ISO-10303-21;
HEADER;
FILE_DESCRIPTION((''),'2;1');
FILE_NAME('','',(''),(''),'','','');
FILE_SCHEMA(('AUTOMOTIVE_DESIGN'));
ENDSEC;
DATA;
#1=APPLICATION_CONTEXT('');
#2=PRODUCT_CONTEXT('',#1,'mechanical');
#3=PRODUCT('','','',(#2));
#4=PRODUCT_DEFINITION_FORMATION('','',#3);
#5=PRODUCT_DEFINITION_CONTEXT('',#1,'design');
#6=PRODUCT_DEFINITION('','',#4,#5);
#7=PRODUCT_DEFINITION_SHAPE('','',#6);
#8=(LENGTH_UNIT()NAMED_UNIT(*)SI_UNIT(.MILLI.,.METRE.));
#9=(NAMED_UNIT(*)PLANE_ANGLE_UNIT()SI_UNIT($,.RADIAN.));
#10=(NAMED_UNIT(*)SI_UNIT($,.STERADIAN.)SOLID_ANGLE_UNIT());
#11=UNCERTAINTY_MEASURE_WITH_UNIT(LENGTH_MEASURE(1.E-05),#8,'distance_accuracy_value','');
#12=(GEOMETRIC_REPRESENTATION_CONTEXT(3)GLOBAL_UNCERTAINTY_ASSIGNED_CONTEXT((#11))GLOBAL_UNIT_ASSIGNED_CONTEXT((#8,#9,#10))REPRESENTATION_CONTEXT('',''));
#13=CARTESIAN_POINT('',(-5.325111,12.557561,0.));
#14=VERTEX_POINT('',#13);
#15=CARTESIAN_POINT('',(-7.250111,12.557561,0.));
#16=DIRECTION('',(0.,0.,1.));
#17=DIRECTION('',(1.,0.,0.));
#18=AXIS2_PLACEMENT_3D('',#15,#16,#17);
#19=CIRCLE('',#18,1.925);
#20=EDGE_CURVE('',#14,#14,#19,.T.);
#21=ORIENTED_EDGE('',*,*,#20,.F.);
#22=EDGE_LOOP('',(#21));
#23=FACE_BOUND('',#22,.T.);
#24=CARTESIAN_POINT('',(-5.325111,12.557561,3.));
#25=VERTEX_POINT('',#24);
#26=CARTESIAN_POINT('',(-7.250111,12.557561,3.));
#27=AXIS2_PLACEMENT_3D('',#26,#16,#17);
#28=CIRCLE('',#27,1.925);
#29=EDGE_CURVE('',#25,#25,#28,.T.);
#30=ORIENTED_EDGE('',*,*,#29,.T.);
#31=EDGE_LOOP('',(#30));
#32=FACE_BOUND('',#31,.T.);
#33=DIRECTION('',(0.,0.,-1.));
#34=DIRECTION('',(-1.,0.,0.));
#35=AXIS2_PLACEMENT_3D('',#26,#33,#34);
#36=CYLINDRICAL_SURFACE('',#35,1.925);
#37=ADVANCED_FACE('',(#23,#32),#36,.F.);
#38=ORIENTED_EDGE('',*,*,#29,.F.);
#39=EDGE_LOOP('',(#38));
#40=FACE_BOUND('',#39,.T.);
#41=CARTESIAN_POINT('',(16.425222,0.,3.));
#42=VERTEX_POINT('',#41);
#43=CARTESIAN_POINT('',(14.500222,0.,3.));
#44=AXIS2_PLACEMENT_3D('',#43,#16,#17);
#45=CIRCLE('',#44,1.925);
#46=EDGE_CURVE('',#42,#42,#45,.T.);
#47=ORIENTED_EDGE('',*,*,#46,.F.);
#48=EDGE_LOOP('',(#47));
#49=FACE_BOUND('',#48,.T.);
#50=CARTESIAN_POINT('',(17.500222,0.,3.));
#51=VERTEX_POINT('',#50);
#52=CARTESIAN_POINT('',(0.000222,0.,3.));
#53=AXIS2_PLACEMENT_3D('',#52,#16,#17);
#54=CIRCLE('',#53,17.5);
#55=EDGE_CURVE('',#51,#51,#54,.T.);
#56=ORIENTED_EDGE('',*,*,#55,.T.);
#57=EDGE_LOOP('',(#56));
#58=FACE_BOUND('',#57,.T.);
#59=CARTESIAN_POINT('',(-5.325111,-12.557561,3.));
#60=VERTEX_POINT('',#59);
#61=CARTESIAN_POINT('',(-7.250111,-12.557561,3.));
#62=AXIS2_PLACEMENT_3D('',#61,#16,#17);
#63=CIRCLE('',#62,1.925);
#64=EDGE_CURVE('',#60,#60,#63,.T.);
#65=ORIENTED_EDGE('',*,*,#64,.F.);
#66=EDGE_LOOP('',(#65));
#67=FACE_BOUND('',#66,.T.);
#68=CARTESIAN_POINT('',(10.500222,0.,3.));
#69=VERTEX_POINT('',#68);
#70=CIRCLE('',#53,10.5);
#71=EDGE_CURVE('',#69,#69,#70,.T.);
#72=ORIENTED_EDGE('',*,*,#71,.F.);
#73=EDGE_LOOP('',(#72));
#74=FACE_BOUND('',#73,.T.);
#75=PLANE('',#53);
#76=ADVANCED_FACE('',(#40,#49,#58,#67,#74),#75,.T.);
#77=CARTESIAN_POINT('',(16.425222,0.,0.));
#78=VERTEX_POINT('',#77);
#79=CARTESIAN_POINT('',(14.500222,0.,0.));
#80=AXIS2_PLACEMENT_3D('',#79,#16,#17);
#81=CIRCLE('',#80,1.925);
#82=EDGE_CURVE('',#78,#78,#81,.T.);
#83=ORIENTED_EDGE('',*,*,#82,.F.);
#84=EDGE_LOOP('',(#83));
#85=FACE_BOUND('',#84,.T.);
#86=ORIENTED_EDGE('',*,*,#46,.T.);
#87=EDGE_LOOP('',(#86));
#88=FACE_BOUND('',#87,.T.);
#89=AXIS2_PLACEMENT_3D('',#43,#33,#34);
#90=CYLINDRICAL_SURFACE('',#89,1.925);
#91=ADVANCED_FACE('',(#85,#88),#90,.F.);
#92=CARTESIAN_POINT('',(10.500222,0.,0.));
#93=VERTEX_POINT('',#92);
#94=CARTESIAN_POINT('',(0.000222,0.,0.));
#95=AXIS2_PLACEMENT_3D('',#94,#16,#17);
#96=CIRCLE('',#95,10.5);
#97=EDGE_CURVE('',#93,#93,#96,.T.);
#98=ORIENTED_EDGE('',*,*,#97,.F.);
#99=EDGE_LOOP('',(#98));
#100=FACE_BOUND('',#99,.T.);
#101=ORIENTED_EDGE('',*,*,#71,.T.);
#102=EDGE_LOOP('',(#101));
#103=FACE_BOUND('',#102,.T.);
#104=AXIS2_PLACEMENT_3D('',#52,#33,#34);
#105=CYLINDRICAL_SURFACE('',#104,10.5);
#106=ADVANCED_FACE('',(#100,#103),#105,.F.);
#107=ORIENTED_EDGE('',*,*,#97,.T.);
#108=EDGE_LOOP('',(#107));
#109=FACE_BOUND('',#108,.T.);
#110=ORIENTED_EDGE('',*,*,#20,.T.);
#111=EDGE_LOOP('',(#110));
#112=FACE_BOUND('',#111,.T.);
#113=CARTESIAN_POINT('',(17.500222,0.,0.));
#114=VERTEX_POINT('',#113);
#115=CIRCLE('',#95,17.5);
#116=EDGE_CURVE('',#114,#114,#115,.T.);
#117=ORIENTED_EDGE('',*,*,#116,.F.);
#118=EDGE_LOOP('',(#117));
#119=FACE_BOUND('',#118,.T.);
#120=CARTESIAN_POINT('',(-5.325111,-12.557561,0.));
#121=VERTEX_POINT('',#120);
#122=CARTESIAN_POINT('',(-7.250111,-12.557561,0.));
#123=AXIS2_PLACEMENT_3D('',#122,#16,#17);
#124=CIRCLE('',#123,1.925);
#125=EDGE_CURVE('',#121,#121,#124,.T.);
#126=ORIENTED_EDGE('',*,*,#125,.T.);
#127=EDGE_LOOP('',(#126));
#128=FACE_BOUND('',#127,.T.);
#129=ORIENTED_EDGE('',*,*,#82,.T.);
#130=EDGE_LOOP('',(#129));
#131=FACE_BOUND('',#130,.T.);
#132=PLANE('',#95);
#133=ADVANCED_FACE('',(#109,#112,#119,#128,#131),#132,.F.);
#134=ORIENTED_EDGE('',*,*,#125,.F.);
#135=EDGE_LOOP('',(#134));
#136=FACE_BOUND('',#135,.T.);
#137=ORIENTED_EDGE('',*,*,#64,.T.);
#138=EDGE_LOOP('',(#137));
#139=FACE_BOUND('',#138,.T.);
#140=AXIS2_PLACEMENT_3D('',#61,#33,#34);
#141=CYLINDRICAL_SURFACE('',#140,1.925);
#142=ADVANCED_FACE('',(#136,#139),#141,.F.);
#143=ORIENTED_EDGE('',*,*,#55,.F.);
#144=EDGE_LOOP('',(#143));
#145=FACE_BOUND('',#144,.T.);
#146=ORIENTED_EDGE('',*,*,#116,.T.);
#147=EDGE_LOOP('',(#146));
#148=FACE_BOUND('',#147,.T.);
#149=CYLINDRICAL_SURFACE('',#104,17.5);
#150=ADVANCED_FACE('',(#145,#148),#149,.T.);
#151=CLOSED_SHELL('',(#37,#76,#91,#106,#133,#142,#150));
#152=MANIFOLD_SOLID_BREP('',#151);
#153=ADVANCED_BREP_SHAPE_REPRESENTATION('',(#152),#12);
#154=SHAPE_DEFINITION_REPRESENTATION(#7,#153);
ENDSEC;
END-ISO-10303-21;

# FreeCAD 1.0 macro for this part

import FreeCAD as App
import Part
import Sketcher
from FreeCAD import Vector

doc = App.newDocument("Part")
body = doc.addObject("PartDesign::Body", "Body")

# Sketch on XY plane
sketch1 = body.newObject("Sketcher::SketchObject", "Sketch")
sketch1.AttachmentSupport = (doc.getObject("XY_Plane"), [""])
sketch1.MapMode = "FlatFace"
sketch1.addGeometry([
    Part.Circle(Vector(0.000222, 0, 0), Vector(0, 0, 1), 17.5),  # 0
    Part.Circle(Vector(-7.250111, -12.557561, 0), Vector(0, 0, 1), 1.925),  # 1
    Part.Circle(Vector(0.000222, 0, 0), Vector(0, 0, 1), 10.5),  # 2
    Part.Circle(Vector(-7.250111, 12.557561, 0), Vector(0, 0, 1), 1.925),  # 3
    Part.Circle(Vector(14.500222, 0, 0), Vector(0, 0, 1), 1.925),  # 4
], False)
sketch1.addConstraint([
    Sketcher.Constraint("Coincident", 2, 3, 0, 3),
    Sketcher.Constraint("Equal", 1, 3),
    Sketcher.Constraint("Equal", 3, 4),
    Sketcher.Constraint("Symmetric", 1, 3, 3, 3, -1),
    Sketcher.Constraint("PointOnObject", 0, 3, -1),
    Sketcher.Constraint("PointOnObject", 4, 3, -1),
    Sketcher.Constraint("Diameter", 0, 35.0),
    Sketcher.Constraint("Diameter", 2, 21.0),
    Sketcher.Constraint("Diameter", 1, 3.85),
    Sketcher.Constraint("DistanceX", 0, 3, 4, 3, 14.5),
    Sketcher.Constraint("DistanceX", -1, 1, 0, 3, 0.000222),
    Sketcher.Constraint("DistanceX", 1, 3, -1, 1, 7.250111),
    Sketcher.Constraint("DistanceY", 1, 3, -1, 1, 12.557561),
])
pad1 = body.newObject("PartDesign::Pad", "Pad")
pad1.Profile = sketch1
pad1.Length = 3

doc.recompute()
